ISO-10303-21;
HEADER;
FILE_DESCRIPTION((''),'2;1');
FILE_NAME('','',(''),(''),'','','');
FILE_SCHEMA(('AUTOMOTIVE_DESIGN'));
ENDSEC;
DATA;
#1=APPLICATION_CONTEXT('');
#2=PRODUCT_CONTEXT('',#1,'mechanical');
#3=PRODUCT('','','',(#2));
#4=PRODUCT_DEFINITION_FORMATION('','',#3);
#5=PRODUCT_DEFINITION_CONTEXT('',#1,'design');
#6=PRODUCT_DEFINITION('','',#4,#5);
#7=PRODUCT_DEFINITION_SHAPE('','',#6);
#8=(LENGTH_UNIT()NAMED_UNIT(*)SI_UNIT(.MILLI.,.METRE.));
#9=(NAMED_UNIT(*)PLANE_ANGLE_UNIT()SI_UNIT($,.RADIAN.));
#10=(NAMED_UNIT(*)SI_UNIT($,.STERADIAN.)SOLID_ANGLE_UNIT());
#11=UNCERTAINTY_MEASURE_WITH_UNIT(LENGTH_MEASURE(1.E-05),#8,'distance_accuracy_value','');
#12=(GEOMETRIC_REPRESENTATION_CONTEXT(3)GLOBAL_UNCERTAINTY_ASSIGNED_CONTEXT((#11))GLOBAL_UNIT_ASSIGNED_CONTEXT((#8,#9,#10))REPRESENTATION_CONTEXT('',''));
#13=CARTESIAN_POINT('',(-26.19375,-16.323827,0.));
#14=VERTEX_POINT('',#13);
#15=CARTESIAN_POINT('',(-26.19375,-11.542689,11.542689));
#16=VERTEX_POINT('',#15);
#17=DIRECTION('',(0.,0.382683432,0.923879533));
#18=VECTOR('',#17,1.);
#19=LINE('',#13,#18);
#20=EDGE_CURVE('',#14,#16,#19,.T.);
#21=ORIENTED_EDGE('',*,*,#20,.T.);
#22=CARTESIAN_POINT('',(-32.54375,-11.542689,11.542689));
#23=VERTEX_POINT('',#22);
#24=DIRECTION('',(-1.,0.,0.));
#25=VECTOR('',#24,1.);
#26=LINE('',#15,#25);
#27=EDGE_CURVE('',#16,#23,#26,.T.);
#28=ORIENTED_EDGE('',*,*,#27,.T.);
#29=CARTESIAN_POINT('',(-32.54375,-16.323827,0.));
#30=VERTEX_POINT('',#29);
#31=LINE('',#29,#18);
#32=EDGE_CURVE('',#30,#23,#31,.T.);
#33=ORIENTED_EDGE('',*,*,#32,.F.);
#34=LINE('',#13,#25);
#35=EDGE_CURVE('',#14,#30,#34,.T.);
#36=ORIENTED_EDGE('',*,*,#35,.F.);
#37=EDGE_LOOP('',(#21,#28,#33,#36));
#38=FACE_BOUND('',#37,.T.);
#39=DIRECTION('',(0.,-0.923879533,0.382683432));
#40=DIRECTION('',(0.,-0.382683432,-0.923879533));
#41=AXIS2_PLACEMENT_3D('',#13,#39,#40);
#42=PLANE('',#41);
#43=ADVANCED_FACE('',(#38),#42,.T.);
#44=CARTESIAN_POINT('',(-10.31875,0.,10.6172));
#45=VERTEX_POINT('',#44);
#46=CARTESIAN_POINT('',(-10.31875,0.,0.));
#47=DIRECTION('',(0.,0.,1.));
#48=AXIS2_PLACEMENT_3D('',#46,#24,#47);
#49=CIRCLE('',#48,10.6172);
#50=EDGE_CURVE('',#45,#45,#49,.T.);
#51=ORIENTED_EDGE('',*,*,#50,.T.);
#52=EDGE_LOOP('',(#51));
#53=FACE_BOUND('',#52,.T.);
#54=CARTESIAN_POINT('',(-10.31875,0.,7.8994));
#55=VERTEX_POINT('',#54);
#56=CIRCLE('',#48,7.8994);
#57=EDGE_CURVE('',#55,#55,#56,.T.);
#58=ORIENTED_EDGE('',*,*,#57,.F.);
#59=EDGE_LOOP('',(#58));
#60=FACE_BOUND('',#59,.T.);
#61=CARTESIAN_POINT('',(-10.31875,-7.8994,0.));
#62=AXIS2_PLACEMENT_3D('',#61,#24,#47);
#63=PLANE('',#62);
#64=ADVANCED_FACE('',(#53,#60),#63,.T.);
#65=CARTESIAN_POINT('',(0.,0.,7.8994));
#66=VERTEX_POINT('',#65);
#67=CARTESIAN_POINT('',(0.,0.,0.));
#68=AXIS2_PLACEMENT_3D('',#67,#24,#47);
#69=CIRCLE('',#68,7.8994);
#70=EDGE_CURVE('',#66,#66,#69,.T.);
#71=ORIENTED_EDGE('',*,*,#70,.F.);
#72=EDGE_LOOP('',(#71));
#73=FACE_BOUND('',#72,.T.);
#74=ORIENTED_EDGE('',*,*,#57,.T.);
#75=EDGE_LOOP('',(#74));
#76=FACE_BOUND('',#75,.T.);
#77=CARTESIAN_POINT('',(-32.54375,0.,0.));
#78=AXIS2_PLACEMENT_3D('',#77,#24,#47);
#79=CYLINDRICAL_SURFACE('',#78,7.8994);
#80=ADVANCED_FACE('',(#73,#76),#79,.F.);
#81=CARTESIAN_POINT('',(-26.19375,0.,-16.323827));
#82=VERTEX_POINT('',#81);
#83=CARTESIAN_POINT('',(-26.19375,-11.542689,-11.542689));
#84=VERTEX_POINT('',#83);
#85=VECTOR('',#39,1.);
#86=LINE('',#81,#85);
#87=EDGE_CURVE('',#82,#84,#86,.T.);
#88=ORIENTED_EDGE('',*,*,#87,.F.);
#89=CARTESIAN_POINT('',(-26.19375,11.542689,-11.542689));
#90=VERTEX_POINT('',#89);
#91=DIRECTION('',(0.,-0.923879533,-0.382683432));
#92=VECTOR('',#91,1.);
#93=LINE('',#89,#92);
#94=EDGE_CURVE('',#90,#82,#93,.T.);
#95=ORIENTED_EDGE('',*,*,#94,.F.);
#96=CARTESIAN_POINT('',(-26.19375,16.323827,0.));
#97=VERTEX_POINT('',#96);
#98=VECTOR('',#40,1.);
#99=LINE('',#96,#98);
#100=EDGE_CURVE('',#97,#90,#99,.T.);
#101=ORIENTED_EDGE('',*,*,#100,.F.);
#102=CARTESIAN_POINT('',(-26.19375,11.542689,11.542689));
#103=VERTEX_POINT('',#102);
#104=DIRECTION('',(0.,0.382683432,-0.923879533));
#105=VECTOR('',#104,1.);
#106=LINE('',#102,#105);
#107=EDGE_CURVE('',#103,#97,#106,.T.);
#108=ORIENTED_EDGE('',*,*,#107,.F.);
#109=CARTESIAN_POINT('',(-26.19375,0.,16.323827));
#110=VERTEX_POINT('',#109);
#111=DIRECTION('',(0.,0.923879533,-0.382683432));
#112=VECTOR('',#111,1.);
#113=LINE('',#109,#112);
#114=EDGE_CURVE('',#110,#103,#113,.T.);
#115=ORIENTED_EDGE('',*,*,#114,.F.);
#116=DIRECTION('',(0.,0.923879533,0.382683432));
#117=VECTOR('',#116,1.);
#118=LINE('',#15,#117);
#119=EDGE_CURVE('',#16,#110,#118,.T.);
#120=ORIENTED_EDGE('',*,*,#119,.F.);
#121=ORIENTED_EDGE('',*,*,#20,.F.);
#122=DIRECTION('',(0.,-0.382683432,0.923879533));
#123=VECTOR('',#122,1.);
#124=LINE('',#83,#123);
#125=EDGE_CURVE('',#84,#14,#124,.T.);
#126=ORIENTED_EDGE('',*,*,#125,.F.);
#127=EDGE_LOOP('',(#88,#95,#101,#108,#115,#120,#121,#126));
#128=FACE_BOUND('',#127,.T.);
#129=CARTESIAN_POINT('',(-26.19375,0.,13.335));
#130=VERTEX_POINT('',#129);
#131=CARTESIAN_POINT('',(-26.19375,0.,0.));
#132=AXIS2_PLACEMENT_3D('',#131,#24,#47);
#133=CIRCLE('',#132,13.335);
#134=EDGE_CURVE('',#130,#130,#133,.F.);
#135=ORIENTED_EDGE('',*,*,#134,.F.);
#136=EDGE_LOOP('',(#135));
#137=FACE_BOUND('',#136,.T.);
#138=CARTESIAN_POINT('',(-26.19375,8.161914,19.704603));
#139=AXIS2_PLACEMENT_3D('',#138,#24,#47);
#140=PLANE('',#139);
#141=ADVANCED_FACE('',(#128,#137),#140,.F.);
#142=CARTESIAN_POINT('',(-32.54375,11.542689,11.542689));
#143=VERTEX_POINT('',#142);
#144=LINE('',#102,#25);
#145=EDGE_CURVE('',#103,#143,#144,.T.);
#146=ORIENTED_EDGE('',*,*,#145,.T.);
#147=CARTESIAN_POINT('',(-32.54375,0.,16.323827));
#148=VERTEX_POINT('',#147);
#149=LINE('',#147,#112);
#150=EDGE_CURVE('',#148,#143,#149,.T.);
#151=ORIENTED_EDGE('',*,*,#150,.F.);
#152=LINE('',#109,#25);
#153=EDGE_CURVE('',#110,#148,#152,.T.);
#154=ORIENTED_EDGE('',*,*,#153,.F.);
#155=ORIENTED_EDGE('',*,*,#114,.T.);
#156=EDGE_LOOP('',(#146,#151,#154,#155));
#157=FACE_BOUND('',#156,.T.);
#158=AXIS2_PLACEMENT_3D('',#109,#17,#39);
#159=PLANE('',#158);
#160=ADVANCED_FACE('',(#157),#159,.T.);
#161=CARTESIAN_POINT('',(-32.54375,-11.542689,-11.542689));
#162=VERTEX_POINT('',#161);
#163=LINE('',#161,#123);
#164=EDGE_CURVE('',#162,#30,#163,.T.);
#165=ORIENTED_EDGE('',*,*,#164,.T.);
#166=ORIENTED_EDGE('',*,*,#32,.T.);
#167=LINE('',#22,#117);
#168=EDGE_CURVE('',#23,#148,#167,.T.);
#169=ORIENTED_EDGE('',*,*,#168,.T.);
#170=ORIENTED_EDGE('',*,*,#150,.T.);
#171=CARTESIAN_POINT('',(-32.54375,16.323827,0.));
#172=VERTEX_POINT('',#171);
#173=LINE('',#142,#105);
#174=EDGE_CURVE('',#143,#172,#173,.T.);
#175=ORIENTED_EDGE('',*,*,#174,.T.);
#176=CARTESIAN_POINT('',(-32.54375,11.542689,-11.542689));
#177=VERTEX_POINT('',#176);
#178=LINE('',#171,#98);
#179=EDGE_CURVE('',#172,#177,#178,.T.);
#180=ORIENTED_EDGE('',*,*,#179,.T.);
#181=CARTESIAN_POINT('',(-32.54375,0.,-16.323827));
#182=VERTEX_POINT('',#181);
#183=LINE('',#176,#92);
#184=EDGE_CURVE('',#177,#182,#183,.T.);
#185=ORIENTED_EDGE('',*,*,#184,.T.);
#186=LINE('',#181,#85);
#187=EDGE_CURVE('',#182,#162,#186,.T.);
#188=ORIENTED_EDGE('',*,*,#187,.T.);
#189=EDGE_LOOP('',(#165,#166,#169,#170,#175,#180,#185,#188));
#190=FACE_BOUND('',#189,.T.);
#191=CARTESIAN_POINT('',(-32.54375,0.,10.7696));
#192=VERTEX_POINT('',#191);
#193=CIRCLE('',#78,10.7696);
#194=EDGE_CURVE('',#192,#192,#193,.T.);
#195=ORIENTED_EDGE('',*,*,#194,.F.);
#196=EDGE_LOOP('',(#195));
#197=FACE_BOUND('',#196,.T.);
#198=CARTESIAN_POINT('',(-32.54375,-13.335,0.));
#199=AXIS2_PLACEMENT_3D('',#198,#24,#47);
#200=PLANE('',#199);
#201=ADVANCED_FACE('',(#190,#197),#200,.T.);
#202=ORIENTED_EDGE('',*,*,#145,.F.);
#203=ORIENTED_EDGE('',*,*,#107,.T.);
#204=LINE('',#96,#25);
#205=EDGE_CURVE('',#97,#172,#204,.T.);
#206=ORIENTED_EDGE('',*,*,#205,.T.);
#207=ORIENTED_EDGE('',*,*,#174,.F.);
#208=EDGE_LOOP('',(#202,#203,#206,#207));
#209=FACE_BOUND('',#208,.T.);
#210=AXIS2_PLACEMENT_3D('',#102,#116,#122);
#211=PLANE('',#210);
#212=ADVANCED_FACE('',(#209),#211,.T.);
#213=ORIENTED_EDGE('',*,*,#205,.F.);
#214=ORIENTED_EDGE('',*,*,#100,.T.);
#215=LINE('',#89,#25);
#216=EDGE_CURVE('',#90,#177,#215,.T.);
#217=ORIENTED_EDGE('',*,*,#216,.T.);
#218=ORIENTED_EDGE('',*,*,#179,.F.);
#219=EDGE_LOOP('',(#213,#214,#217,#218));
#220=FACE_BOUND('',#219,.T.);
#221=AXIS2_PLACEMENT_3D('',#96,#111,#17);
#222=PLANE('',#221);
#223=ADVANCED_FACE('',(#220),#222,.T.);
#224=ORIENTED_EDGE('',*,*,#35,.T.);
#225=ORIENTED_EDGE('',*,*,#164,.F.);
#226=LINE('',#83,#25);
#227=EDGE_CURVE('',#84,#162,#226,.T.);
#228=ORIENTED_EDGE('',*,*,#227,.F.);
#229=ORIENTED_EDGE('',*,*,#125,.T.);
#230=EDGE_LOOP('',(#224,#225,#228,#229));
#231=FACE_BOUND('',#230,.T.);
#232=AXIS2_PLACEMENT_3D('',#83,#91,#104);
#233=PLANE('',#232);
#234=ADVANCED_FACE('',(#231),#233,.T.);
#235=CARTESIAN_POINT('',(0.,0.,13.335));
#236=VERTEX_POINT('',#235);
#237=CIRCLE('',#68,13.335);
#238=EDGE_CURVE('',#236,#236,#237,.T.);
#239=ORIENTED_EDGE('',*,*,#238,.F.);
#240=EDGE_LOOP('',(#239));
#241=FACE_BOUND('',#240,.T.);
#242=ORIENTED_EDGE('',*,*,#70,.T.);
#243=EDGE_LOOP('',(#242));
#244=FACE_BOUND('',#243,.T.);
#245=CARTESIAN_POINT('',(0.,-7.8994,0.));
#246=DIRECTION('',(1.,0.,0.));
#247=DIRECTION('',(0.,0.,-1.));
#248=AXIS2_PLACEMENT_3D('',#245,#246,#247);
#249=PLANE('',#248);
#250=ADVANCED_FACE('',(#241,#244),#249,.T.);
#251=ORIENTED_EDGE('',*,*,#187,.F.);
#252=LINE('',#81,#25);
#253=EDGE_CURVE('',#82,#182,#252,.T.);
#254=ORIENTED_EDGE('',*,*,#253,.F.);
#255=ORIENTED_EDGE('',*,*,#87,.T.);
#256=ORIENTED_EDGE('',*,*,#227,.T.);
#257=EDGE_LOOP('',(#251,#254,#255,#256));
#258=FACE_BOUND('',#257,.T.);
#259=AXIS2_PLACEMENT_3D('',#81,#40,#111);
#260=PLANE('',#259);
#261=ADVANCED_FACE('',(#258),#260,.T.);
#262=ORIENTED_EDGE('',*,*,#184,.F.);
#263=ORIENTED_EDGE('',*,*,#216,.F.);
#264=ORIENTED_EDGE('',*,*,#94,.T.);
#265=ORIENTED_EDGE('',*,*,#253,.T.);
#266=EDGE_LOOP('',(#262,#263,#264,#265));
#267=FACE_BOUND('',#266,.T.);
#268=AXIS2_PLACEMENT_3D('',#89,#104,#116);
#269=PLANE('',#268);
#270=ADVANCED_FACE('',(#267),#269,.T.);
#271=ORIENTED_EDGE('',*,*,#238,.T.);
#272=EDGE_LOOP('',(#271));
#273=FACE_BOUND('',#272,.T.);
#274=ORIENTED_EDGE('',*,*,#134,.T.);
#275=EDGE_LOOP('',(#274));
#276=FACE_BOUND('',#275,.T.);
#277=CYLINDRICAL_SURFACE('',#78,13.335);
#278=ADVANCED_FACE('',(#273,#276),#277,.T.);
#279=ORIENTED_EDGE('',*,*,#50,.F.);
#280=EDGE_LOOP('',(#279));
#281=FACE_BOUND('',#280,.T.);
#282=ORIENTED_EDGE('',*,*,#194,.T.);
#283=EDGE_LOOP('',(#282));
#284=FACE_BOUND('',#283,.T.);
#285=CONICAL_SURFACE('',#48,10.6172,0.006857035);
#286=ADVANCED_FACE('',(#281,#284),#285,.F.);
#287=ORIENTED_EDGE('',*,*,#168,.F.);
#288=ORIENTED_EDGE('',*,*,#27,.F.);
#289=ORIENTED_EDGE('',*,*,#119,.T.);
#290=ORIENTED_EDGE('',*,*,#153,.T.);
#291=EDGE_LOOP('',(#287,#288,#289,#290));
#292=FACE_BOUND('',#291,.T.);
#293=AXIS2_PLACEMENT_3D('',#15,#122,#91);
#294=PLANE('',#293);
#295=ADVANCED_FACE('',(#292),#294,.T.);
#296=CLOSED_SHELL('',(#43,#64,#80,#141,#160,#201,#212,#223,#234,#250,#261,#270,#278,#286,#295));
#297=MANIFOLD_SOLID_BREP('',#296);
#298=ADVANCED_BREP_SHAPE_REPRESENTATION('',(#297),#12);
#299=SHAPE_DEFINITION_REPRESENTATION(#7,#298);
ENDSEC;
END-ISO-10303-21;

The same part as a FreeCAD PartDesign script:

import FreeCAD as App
import Part
import Sketcher

V = App.Vector
Q = App.Units.Quantity


def add_polygon(sketch, points):
    """Adds a closed chain of lines whose ends are joined by coincident constraints."""
    first, n = sketch.GeometryCount, len(points)
    for a, b in zip(points, points[1:] + points[:1]):
        sketch.addGeometry(Part.LineSegment(App.Vector(*a, 0), App.Vector(*b, 0)), False)
    for i in range(n):
        sketch.addConstraint(Sketcher.Constraint("Coincident", first + i, 2, first + (i + 1) % n, 1))

doc = App.newDocument("Part")
body = doc.addObject("PartDesign::Body", "Body")

# Sketch on XY plane
sketch1 = doc.addObject("Sketcher::SketchObject", "Sketch")
body.addObject(sketch1)
sketch1.AttachmentSupport = (doc.XY_Plane, [""])
sketch1.MapMode = "FlatFace"
add_polygon(sketch1, [(-32.5, -13.3), (0, -13.3), (0, -7.9), (-10.3, -7.9), (-10.3, -10.6), (-32.5, -10.8)])  # lines 0-5
sketch1.addConstraint([
    Sketcher.Constraint("Horizontal", 0),
    Sketcher.Constraint("Vertical", 1),
    Sketcher.Constraint("Horizontal", 2),
    Sketcher.Constraint("Vertical", 3),
    Sketcher.Constraint("Vertical", 5),
    Sketcher.Constraint("PointOnObject", 0, 2, -2),
    Sketcher.Constraint("DistanceX", 0, 1, 0, 2, Q("1.28125 in")),
    Sketcher.Constraint("DistanceX", 2, 2, 2, 1, Q("0.40625 in")),
    Sketcher.Constraint("DistanceY", 1, 1, 1, 2, Q("0.214 in")),
    Sketcher.Constraint("DistanceY", 3, 2, 3, 1, Q("0.107 in")),
    Sketcher.Constraint("DistanceY", 5, 2, 5, 1, Q("0.101 in")),
    Sketcher.Constraint("DistanceY", 0, 2, -1, 1, Q("0.525 in")),
])
revolution = doc.addObject("PartDesign::Revolution", "Revolution")
body.addObject(revolution)
revolution.Profile = sketch1
revolution.ReferenceAxis = (sketch1, ["H_Axis"])
revolution.Angle = 360

# Sketch on YZ plane
sketch2 = doc.addObject("Sketcher::SketchObject", "Sketch001")
body.addObject(sketch2)
sketch2.AttachmentSupport = (doc.YZ_Plane, [""])
sketch2.MapMode = "FlatFace"
sketch2.AttachmentOffset = App.Placement(V(0, 0, -1.28125 * 25.4), App.Rotation())
add_polygon(sketch2, [(0, 16), (12, 12), (16, 0), (12, -12), (0, -16), (-12, -12), (-16, 0), (-12, 12)])  # lines 0-7
sketch2.addGeometry(Part.Circle(V(0, 0, 0), V(0, 0, 1), 11), False)  # 8
sketch2.addConstraint([
    Sketcher.Constraint("Coincident", 8, 3, -1, 1),
    Sketcher.Constraint("Symmetric", 0, 2, 4, 2, -1, 1),
    Sketcher.Constraint("Symmetric", 1, 2, 5, 2, -1, 1),
    Sketcher.Constraint("Symmetric", 2, 2, 6, 2, -1, 1),
    Sketcher.Constraint("Symmetric", 3, 2, 7, 2, -1, 1),
    Sketcher.Constraint("Symmetric", 2, 2, 4, 2, -2),
    Sketcher.Constraint("PointOnObject", 1, 2, -1),
    Sketcher.Constraint("PointOnObject", 3, 2, -2),
    Sketcher.Constraint("Perpendicular", 0, 2),
    Sketcher.Constraint("Equal", 0, 1),
    Sketcher.Constraint("Diameter", 8, Q("0.848 in")),
    Sketcher.Constraint("Angle", 0, Q("-22.5 deg")),
    Sketcher.Constraint("DistanceX", -1, 1, 0, 2, 11.542689),
])
pad1 = doc.addObject("PartDesign::Pad", "Pad")
body.addObject(pad1)
pad1.Profile = sketch2
pad1.Length = Q("0.25 in")

doc.recompute()
